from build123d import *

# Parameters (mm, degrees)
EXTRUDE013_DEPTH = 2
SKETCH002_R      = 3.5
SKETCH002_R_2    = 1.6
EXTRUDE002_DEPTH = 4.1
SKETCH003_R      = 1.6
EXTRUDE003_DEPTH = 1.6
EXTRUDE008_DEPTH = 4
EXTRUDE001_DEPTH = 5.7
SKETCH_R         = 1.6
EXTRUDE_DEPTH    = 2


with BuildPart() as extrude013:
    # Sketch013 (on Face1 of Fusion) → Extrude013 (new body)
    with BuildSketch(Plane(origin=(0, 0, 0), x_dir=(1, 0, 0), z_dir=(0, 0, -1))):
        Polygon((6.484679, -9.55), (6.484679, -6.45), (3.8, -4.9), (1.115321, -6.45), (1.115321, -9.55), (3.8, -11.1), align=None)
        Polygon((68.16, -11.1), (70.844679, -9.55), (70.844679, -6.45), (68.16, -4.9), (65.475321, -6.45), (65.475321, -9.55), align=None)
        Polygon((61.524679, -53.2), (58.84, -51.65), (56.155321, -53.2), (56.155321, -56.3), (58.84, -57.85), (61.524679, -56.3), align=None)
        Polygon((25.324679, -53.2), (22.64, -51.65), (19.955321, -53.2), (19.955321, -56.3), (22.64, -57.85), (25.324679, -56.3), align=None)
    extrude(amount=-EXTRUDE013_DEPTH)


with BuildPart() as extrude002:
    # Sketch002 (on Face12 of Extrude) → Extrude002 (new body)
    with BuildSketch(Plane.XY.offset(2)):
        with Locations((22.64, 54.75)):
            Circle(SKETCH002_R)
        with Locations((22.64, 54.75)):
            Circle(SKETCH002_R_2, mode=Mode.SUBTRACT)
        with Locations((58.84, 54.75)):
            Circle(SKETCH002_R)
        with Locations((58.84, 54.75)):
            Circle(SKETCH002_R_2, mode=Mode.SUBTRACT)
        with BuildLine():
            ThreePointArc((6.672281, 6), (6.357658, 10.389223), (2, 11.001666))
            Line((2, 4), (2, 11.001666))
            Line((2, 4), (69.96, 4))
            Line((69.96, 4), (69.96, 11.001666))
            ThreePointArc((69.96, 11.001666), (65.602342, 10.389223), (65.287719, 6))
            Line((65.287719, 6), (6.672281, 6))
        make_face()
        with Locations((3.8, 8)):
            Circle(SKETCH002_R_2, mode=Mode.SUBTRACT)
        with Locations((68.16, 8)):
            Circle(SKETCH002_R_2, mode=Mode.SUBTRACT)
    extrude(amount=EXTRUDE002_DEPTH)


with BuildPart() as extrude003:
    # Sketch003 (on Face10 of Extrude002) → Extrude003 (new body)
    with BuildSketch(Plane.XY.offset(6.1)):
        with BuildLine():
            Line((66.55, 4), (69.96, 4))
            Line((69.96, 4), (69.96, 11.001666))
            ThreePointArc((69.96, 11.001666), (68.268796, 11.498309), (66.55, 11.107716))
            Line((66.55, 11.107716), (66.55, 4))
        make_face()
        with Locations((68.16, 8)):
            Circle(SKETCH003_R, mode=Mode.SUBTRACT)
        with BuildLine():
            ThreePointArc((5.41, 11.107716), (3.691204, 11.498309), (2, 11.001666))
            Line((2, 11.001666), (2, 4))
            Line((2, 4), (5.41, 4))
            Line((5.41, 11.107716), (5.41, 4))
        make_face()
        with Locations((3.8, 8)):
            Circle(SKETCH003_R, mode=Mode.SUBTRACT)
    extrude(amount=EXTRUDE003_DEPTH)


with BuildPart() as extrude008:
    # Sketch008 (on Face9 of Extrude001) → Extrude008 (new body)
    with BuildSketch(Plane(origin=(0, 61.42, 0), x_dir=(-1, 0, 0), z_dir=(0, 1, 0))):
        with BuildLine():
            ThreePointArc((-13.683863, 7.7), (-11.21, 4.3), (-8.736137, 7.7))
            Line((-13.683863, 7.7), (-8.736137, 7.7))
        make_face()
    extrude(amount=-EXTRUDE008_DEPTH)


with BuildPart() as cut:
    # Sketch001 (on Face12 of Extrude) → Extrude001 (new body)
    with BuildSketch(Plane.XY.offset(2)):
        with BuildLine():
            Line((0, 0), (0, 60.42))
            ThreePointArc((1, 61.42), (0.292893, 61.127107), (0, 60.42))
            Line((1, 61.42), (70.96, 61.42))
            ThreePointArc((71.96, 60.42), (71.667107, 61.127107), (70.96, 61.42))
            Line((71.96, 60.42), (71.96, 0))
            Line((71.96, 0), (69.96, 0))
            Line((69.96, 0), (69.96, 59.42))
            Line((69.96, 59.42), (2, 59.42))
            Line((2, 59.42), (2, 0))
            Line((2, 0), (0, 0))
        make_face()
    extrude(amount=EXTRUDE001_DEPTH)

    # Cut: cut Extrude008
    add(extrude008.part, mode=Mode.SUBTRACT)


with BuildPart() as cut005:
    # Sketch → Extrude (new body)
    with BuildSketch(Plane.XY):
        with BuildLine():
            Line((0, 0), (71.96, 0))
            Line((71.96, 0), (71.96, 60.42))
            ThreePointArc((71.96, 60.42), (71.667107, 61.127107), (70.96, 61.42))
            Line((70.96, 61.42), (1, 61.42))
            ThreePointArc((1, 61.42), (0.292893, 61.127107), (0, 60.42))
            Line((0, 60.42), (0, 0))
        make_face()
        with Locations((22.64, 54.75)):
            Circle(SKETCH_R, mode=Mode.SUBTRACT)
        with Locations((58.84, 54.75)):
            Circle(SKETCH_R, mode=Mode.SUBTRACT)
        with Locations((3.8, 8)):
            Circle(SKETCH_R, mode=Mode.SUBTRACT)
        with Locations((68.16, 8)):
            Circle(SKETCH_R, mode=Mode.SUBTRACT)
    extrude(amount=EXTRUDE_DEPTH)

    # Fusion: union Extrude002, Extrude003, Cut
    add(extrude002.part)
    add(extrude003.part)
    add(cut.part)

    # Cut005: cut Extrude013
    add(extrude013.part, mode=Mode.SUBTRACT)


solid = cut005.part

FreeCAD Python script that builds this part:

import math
import FreeCAD as App
import Part
import Sketcher
Q = App.Units.Quantity


def add_polygon(sketch, points):
    """Adds a closed chain of lines whose ends are joined by coincident constraints."""
    first, n = sketch.GeometryCount, len(points)
    for a, b in zip(points, points[1:] + points[:1]):
        sketch.addGeometry(Part.LineSegment(App.Vector(*a, 0), App.Vector(*b, 0)), False)
    for i in range(n):
        sketch.addConstraint(Sketcher.Constraint("Coincident", first + i, 2, first + (i + 1) % n, 1))

doc = App.newDocument("Part")
params = doc.addObject("Spreadsheet::Sheet", "Params")
for row, (alias, value) in enumerate([
    ("sketch1_height", "3.1 mm"),
    ("sketch1_length", "3.1 mm"),
    ("pad1_length", "2 mm"),
    ("sketch2_diameter", "7 mm"),
    ("sketch2_diameter2", "3.2 mm"),
    ("sketch2_width", "67.96 mm"),
    ("pad2_length", "4.1 mm"),
    ("sketch3_diameter", "3.2 mm"),
    ("sketch3_width", "3.41 mm"),
    ("pad3_length", "1.6 mm"),
    ("sketch4_radius", "2.6 mm"),
    ("pad4_length", "4 mm"),
    ("sketch5_radius", "0.999999 mm"),
    ("sketch5_width", "2 mm"),
    ("sketch5_width2", "67.96 mm"),
    ("sketch5_height", "60.42 mm"),
    ("pad5_length", "5.7 mm"),
    ("sketch6_radius", "0.999999 mm"),
    ("sketch6_diameter", "3.2 mm"),
    ("sketch6_width", "71.96 mm"),
    ("sketch6_height", "60.42 mm"),
    ("pad6_length", "2 mm"),
], start=1):
    params.set(f"A{row}", alias)
    params.set(f"B{row}", "=" + value)
    params.setAlias(f"B{row}", alias)

body = doc.addObject("PartDesign::Body", "Body")
body.AllowCompound = True

sketch1 = body.newObject("Sketcher::SketchObject", "Sketch")
sketch1.AttachmentSupport = (doc.getObject("XY_Plane"), [""])
sketch1.MapMode = "FlatFace"
add_polygon(sketch1, [(6.5, 9.6), (6.5, 6.5), (3.8, 4.9), (1.1, 6.5), (1.1, 9.6), (3.8, 11.1)])
add_polygon(sketch1, [(68.2, 11.1), (70.8, 9.6), (70.8, 6.5), (68.2, 4.9), (65.5, 6.5), (65.5, 9.6)])
add_polygon(sketch1, [(61.5, 53.2), (58.8, 51.6), (56.2, 53.2), (56.2, 56.3), (58.8, 57.9), (61.5, 56.3)])
add_polygon(sketch1, [(25.3, 53.2), (22.6, 51.6), (20, 53.2), (20, 56.3), (22.6, 57.9), (25.3, 56.3)])
sketch1.addConstraint([
    Sketcher.Constraint("Vertical", 0),
    Sketcher.Constraint("Vertical", 3),
    Sketcher.Constraint("Vertical", 7),
    Sketcher.Constraint("Vertical", 10),
    Sketcher.Constraint("Vertical", 14),
    Sketcher.Constraint("Vertical", 17),
    Sketcher.Constraint("Vertical", 20),
    Sketcher.Constraint("Vertical", 23),
    Sketcher.Constraint("Parallel", 1, 4),
    Sketcher.Constraint("Parallel", 2, 5),
    Sketcher.Constraint("Parallel", 5, 6),
    Sketcher.Constraint("Parallel", 4, 8),
    Sketcher.Constraint("Parallel", 6, 9),
    Sketcher.Constraint("Parallel", 8, 11),
    Sketcher.Constraint("Parallel", 11, 12),
    Sketcher.Constraint("Parallel", 9, 13),
    Sketcher.Constraint("Parallel", 12, 15),
    Sketcher.Constraint("Parallel", 13, 16),
    Sketcher.Constraint("Parallel", 15, 18),
    Sketcher.Constraint("Parallel", 16, 19),
    Sketcher.Constraint("Parallel", 18, 21),
    Sketcher.Constraint("Parallel", 19, 22),
    Sketcher.Constraint("Horizontal", 0, 2, 2, 2),
    Sketcher.Constraint("Horizontal", 3, 2, 5, 2),
    Sketcher.Constraint("Horizontal", 5, 2, 6, 2),
    Sketcher.Constraint("Horizontal", 2, 2, 7, 2),
    Sketcher.Constraint("Horizontal", 1, 2, 8, 2),
    Sketcher.Constraint("Horizontal", 7, 2, 9, 2),
    Sketcher.Constraint("Horizontal", 6, 2, 10, 2),
    Sketcher.Constraint("Horizontal", 14, 2, 16, 2),
    Sketcher.Constraint("Horizontal", 13, 2, 17, 2),
    Sketcher.Constraint("Horizontal", 12, 2, 18, 2),
    Sketcher.Constraint("Horizontal", 17, 2, 19, 2),
    Sketcher.Constraint("Horizontal", 16, 2, 20, 2),
    Sketcher.Constraint("Horizontal", 15, 2, 21, 2),
    Sketcher.Constraint("Horizontal", 20, 2, 22, 2),
    Sketcher.Constraint("Vertical", 1, 2, 4, 2),
    Sketcher.Constraint("Equal", 10, 14),
    Sketcher.Constraint("Equal", 11, 12),
    Sketcher.Constraint("Angle", 1, Q("-150.000002 deg")),
    Sketcher.Constraint("DistanceY", 0, 2, 0, 1, Q("3.1 mm")),
    Sketcher.Constraint("Distance", 1, Q("3.1 mm")),
    Sketcher.Constraint("DistanceX", -1, 1, 1, 2, Q("3.8 mm")),
    Sketcher.Constraint("DistanceY", -1, 1, 1, 2, Q("4.9 mm")),
    Sketcher.Constraint("DistanceY", -1, 1, 13, 2, Q("53.2 mm")),
    Sketcher.Constraint("DistanceX", 18, 2, 12, 2, Q("36.2 mm")),
    Sketcher.Constraint("DistanceX", -1, 1, 8, 2, Q("68.16 mm")),
    Sketcher.Constraint("DistanceX", -1, 1, 12, 2, Q("58.84 mm")),
])
sketch1.setExpression("Constraints[64]", "Params.sketch1_height")
sketch1.setExpression("Constraints[65]", "Params.sketch1_length")
pad1 = body.newObject("PartDesign::Pad", "Pad")
pad1.Profile = sketch1
pad1.setExpression("Length", "Params.pad1_length")
body2 = doc.addObject("PartDesign::Body", "Body001")
body2.AllowCompound = True

sketch2 = body2.newObject("Sketcher::SketchObject", "Sketch001")
sketch2.AttachmentSupport = (doc.getObject("XY_Plane001"), [""])
sketch2.MapMode = "FlatFace"
sketch2.AttachmentOffset = App.Placement(App.Vector(0, 0, 2), App.Rotation())
sketch2.addGeometry([
    Part.Circle(App.Vector(22.6, 54.8, 0), App.Vector(0, 0, 1), 3.5),
    Part.Circle(App.Vector(22.6, 54.8, 0), App.Vector(0, 0, 1), 1.6),
    Part.Circle(App.Vector(58.8, 54.8, 0), App.Vector(0, 0, 1), 3.5),
    Part.Circle(App.Vector(58.8, 54.8, 0), App.Vector(0, 0, 1), 1.6),
    Part.ArcOfCircle(Part.Circle(App.Vector(3.8, 8, 0), App.Vector(0, 0, 1), 3.5), math.radians(-35), math.radians(121)),
    Part.LineSegment(App.Vector(2, 11, 0), App.Vector(2, 4, 0)),
    Part.LineSegment(App.Vector(2, 4, 0), App.Vector(70, 4, 0)),
    Part.LineSegment(App.Vector(70, 4, 0), App.Vector(70, 11, 0)),
    Part.ArcOfCircle(Part.Circle(App.Vector(68.2, 8, 0), App.Vector(0, 0, 1), 3.5), math.radians(59), math.radians(215)),
    Part.LineSegment(App.Vector(65.3, 6, 0), App.Vector(6.7, 6, 0)),
    Part.Circle(App.Vector(3.8, 8, 0), App.Vector(0, 0, 1), 1.6),
    Part.Circle(App.Vector(68.2, 8, 0), App.Vector(0, 0, 1), 1.6),
], False)
sketch2.addConstraint([
    Sketcher.Constraint("Coincident", 4, 2, 5, 1),
    Sketcher.Constraint("Coincident", 5, 2, 6, 1),
    Sketcher.Constraint("Coincident", 6, 2, 7, 1),
    Sketcher.Constraint("Coincident", 7, 2, 8, 1),
    Sketcher.Constraint("Coincident", 8, 2, 9, 1),
    Sketcher.Constraint("Coincident", 9, 2, 4, 1),
    Sketcher.Constraint("Vertical", 5),
    Sketcher.Constraint("Horizontal", 6),
    Sketcher.Constraint("Vertical", 7),
    Sketcher.Constraint("Horizontal", 9),
    Sketcher.Constraint("Coincident", 1, 3, 0, 3),
    Sketcher.Constraint("Coincident", 3, 3, 2, 3),
    Sketcher.Constraint("Coincident", 10, 3, 4, 3),
    Sketcher.Constraint("Coincident", 11, 3, 8, 3),
    Sketcher.Constraint("Equal", 0, 2),
    Sketcher.Constraint("Equal", 1, 3),
    Sketcher.Constraint("Equal", 2, 4),
    Sketcher.Constraint("Equal", 4, 8),
    Sketcher.Constraint("Equal", 3, 10),
    Sketcher.Constraint("Equal", 10, 11),
    Sketcher.Constraint("Horizontal", 1, 3, 2, 3),
    Sketcher.Constraint("Horizontal", 4, 3, 8, 3),
    Sketcher.Constraint("Horizontal", 4, 2, 7, 2),
    Sketcher.Constraint("Diameter", 0, Q("7 mm")),
    Sketcher.Constraint("Diameter", 1, Q("3.2 mm")),
    Sketcher.Constraint("DistanceY", -1, 1, 4, 3, Q("8 mm")),
    Sketcher.Constraint("DistanceX", -1, 1, 4, 2, Q("2 mm")),
    Sketcher.Constraint("DistanceY", -1, 1, 5, 2, Q("4 mm")),
    Sketcher.Constraint("DistanceY", -1, 1, 8, 2, Q("6 mm")),
    Sketcher.Constraint("DistanceX", 6, 1, 6, 2, Q("67.96 mm")),
    Sketcher.Constraint("DistanceX", -1, 1, 4, 3, Q("3.8 mm")),
    Sketcher.Constraint("DistanceX", 0, 3, 2, 3, Q("36.2 mm")),
    Sketcher.Constraint("DistanceX", -1, 1, 0, 3, Q("22.64 mm")),
    Sketcher.Constraint("DistanceY", -1, 1, 0, 3, Q("54.75 mm")),
])
sketch2.setExpression("Constraints[23]", "Params.sketch2_diameter")
sketch2.setExpression("Constraints[24]", "Params.sketch2_diameter2")
sketch2.setExpression("Constraints[29]", "Params.sketch2_width")
pad2 = body2.newObject("PartDesign::Pad", "Pad001")
pad2.Profile = sketch2
pad2.setExpression("Length", "Params.pad2_length")
body3 = doc.addObject("PartDesign::Body", "Body002")
body3.AllowCompound = True

sketch3 = body3.newObject("Sketcher::SketchObject", "Sketch002")
sketch3.AttachmentSupport = (doc.getObject("XY_Plane002"), [""])
sketch3.MapMode = "FlatFace"
sketch3.AttachmentOffset = App.Placement(App.Vector(0, 0, 6.1), App.Rotation())
sketch3.addGeometry([
    Part.LineSegment(App.Vector(66.5, 4, 0), App.Vector(70, 4, 0)),
    Part.LineSegment(App.Vector(70, 4, 0), App.Vector(70, 11, 0)),
    Part.ArcOfCircle(Part.Circle(App.Vector(68.2, 8, 0), App.Vector(0, 0, 1), 3.5), math.radians(59), math.radians(117)),
    Part.LineSegment(App.Vector(66.5, 11.1, 0), App.Vector(66.5, 4, 0)),
    Part.Circle(App.Vector(68.2, 8, 0), App.Vector(0, 0, 1), 1.6),
    Part.ArcOfCircle(Part.Circle(App.Vector(3.8, 8, 0), App.Vector(0, 0, 1), 3.5), math.radians(63), math.radians(121)),
    Part.LineSegment(App.Vector(2, 11, 0), App.Vector(2, 4, 0)),
    Part.LineSegment(App.Vector(2, 4, 0), App.Vector(5.4, 4, 0)),
    Part.LineSegment(App.Vector(5.4, 4, 0), App.Vector(5.4, 11.1, 0)),
    Part.Circle(App.Vector(3.8, 8, 0), App.Vector(0, 0, 1), 1.6),
], False)
sketch3.addConstraint([
    Sketcher.Constraint("Coincident", 0, 2, 1, 1),
    Sketcher.Constraint("Coincident", 1, 2, 2, 1),
    Sketcher.Constraint("Coincident", 2, 2, 3, 1),
    Sketcher.Constraint("Coincident", 3, 2, 0, 1),
    Sketcher.Constraint("Coincident", 5, 2, 6, 1),
    Sketcher.Constraint("Coincident", 6, 2, 7, 1),
    Sketcher.Constraint("Coincident", 7, 2, 8, 1),
    Sketcher.Constraint("Coincident", 8, 2, 5, 1),
    Sketcher.Constraint("Horizontal", 0),
    Sketcher.Constraint("Vertical", 1),
    Sketcher.Constraint("Vertical", 3),
    Sketcher.Constraint("Vertical", 6),
    Sketcher.Constraint("Horizontal", 7),
    Sketcher.Constraint("Vertical", 8),
    Sketcher.Constraint("Coincident", 4, 3, 2, 3),
    Sketcher.Constraint("Coincident", 9, 3, 5, 3),
    Sketcher.Constraint("Equal", 2, 5),
    Sketcher.Constraint("Equal", 4, 9),
    Sketcher.Constraint("Horizontal", 2, 3, 5, 3),
    Sketcher.Constraint("Horizontal", 1, 2, 5, 2),
    Sketcher.Constraint("Horizontal", 3, 2, 6, 2),
    Sketcher.Constraint("Horizontal", 2, 2, 8, 2),
    Sketcher.Constraint("Diameter", 4, Q("3.2 mm")),
    Sketcher.Constraint("DistanceY", -1, 1, 4, 3, Q("8 mm")),
    Sketcher.Constraint("DistanceY", -1, 1, 0, 2, Q("4 mm")),
    Sketcher.Constraint("DistanceX", -1, 1, 5, 2, Q("2 mm")),
    Sketcher.Constraint("DistanceX", 0, 1, 0, 2, Q("3.41 mm")),
    Sketcher.Constraint("DistanceX", -1, 1, 5, 3, Q("3.8 mm")),
    Sketcher.Constraint("DistanceX", -1, 1, 2, 3, Q("68.16 mm")),
    Sketcher.Constraint("Radius", 2, Q("3.499996 mm")),
])
sketch3.setExpression("Constraints[22]", "Params.sketch3_diameter")
sketch3.setExpression("Constraints[26]", "Params.sketch3_width")
pad3 = body3.newObject("PartDesign::Pad", "Pad002")
pad3.Profile = sketch3
pad3.setExpression("Length", "Params.pad3_length")
body4 = doc.addObject("PartDesign::Body", "Body003")

sketch4 = body4.newObject("Sketcher::SketchObject", "Sketch003")
sketch4.AttachmentSupport = (doc.getObject("XZ_Plane003"), [""])
sketch4.MapMode = "FlatFace"
sketch4.AttachmentOffset = App.Placement(App.Vector(0, 0, -61.42), App.Rotation())
sketch4.addGeometry([
    Part.ArcOfCircle(Part.Circle(App.Vector(11.2, 6.9, 0), App.Vector(0, 0, 1), 2.6), math.radians(162), math.radians(378)),
    Part.LineSegment(App.Vector(8.7, 7.7, 0), App.Vector(13.7, 7.7, 0)),
], False)
sketch4.addConstraint([
    Sketcher.Constraint("Coincident", 0, 1, 1, 1),
    Sketcher.Constraint("Coincident", 1, 2, 0, 2),
    Sketcher.Constraint("Horizontal", 1),
    Sketcher.Constraint("Radius", 0, Q("2.6 mm")),
    Sketcher.Constraint("DistanceY", -1, 1, 0, 3, Q("6.9 mm")),
    Sketcher.Constraint("DistanceY", -1, 1, 0, 1, Q("7.7 mm")),
    Sketcher.Constraint("DistanceX", -1, 1, 0, 3, Q("11.21 mm")),
])
sketch4.setExpression("Constraints[3]", "Params.sketch4_radius")
pad4 = body4.newObject("PartDesign::Pad", "Pad003")
pad4.Profile = sketch4
pad4.setExpression("Length", "Params.pad4_length")
body5 = doc.addObject("PartDesign::Body", "Body004")

sketch5 = body5.newObject("Sketcher::SketchObject", "Sketch004")
sketch5.AttachmentSupport = (doc.getObject("XY_Plane004"), [""])
sketch5.MapMode = "FlatFace"
sketch5.AttachmentOffset = App.Placement(App.Vector(0, 0, 2), App.Rotation())
sketch5.addGeometry([
    Part.LineSegment(App.Vector(0, 60.4, 0), App.Vector(0, 0, 0)),
    Part.LineSegment(App.Vector(0, 0, 0), App.Vector(2, 0, 0)),
    Part.LineSegment(App.Vector(2, 0, 0), App.Vector(2, 59.4, 0)),
    Part.LineSegment(App.Vector(2, 59.4, 0), App.Vector(70, 59.4, 0)),
    Part.LineSegment(App.Vector(70, 59.4, 0), App.Vector(70, 0, 0)),
    Part.LineSegment(App.Vector(70, 0, 0), App.Vector(72, 0, 0)),
    Part.LineSegment(App.Vector(72, 0, 0), App.Vector(72, 60.4, 0)),
    Part.ArcOfCircle(Part.Circle(App.Vector(71, 60.4, 0), App.Vector(0, 0, 1), 1), math.radians(0), math.radians(90)),
    Part.LineSegment(App.Vector(71, 61.4, 0), App.Vector(1, 61.4, 0)),
    Part.ArcOfCircle(Part.Circle(App.Vector(1, 60.4, 0), App.Vector(0, 0, 1), 1), math.radians(90), math.radians(180)),
], False)
sketch5.addConstraint([
    Sketcher.Constraint("Coincident", 0, 2, 1, 1),
    Sketcher.Constraint("Coincident", 1, 2, 2, 1),
    Sketcher.Constraint("Coincident", 2, 2, 3, 1),
    Sketcher.Constraint("Coincident", 3, 2, 4, 1),
    Sketcher.Constraint("Coincident", 4, 2, 5, 1),
    Sketcher.Constraint("Coincident", 5, 2, 6, 1),
    Sketcher.Constraint("Tangent", 6, 2, 7, 1),
    Sketcher.Constraint("Tangent", 7, 2, 8, 1),
    Sketcher.Constraint("Tangent", 8, 2, 9, 1),
    Sketcher.Constraint("Tangent", 9, 2, 0, 1),
    Sketcher.Constraint("Vertical", 0),
    Sketcher.Constraint("Horizontal", 1),
    Sketcher.Constraint("Vertical", 2),
    Sketcher.Constraint("Horizontal", 3),
    Sketcher.Constraint("Vertical", 4),
    Sketcher.Constraint("Horizontal", 5),
    Sketcher.Constraint("Vertical", 6),
    Sketcher.Constraint("Horizontal", 8),
    Sketcher.Constraint("Coincident", 0, 2, -1, 1),
    Sketcher.Constraint("Equal", 7, 9),
    Sketcher.Constraint("PointOnObject", 4, 2, -1),
    Sketcher.Constraint("Equal", 1, 5),
    Sketcher.Constraint("Radius", 7, Q("0.999999 mm")),
    Sketcher.Constraint("DistanceX", 1, 1, 1, 2, Q("2 mm")),
    Sketcher.Constraint("DistanceY", 2, 2, 9, 3, Q("1.000001 mm")),
    Sketcher.Constraint("DistanceX", 3, 1, 3, 2, Q("67.96 mm")),
    Sketcher.Constraint("DistanceY", 0, 2, 0, 1, Q("60.42 mm")),
])
sketch5.setExpression("Constraints[22]", "Params.sketch5_radius")
sketch5.setExpression("Constraints[23]", "Params.sketch5_width")
sketch5.setExpression("Constraints[25]", "Params.sketch5_width2")
sketch5.setExpression("Constraints[26]", "Params.sketch5_height")
pad5 = body5.newObject("PartDesign::Pad", "Pad004")
pad5.Profile = sketch5
pad5.setExpression("Length", "Params.pad5_length")
doc.recompute()

boolean = body5.newObject("PartDesign::Boolean", "Boolean")
boolean.Type = "Cut"
boolean.addObjects([body4])
body6 = doc.addObject("PartDesign::Body", "Body005")

sketch6 = body6.newObject("Sketcher::SketchObject", "Sketch005")
sketch6.AttachmentSupport = (doc.getObject("XY_Plane005"), [""])
sketch6.MapMode = "FlatFace"
sketch6.addGeometry([
    Part.LineSegment(App.Vector(0, 0, 0), App.Vector(72, 0, 0)),
    Part.LineSegment(App.Vector(72, 0, 0), App.Vector(72, 60.4, 0)),
    Part.ArcOfCircle(Part.Circle(App.Vector(71, 60.4, 0), App.Vector(0, 0, 1), 1), math.radians(0), math.radians(90)),
    Part.LineSegment(App.Vector(71, 61.4, 0), App.Vector(1, 61.4, 0)),
    Part.ArcOfCircle(Part.Circle(App.Vector(1, 60.4, 0), App.Vector(0, 0, 1), 1), math.radians(90), math.radians(180)),
    Part.LineSegment(App.Vector(0, 60.4, 0), App.Vector(0, 0, 0)),
    Part.Circle(App.Vector(3.8, 8, 0), App.Vector(0, 0, 1), 1.6),
    Part.Circle(App.Vector(68.2, 8, 0), App.Vector(0, 0, 1), 1.6),
    Part.Circle(App.Vector(22.6, 54.8, 0), App.Vector(0, 0, 1), 1.6),
    Part.Circle(App.Vector(58.8, 54.8, 0), App.Vector(0, 0, 1), 1.6),
], False)
sketch6.addConstraint([
    Sketcher.Constraint("Coincident", 0, 2, 1, 1),
    Sketcher.Constraint("Tangent", 1, 2, 2, 1),
    Sketcher.Constraint("Tangent", 2, 2, 3, 1),
    Sketcher.Constraint("Tangent", 3, 2, 4, 1),
    Sketcher.Constraint("Tangent", 4, 2, 5, 1),
    Sketcher.Constraint("Coincident", 5, 2, 0, 1),
    Sketcher.Constraint("Horizontal", 0),
    Sketcher.Constraint("Vertical", 1),
    Sketcher.Constraint("Horizontal", 3),
    Sketcher.Constraint("Vertical", 5),
    Sketcher.Constraint("Coincident", 5, 2, -1, 1),
    Sketcher.Constraint("Equal", 2, 4),
    Sketcher.Constraint("Equal", 6, 7),
    Sketcher.Constraint("Equal", 7, 8),
    Sketcher.Constraint("Equal", 8, 9),
    Sketcher.Constraint("Horizontal", 6, 3, 7, 3),
    Sketcher.Constraint("Horizontal", 8, 3, 9, 3),
    Sketcher.Constraint("Radius", 2, Q("0.999999 mm")),
    Sketcher.Constraint("Diameter", 6, Q("3.2 mm")),
    Sketcher.Constraint("DistanceY", -1, 1, 6, 3, Q("8 mm")),
    Sketcher.Constraint("DistanceX", 0, 1, 0, 2, Q("71.96 mm")),
    Sketcher.Constraint("DistanceY", 1, 1, 1, 2, Q("60.42 mm")),
    Sketcher.Constraint("DistanceX", -1, 1, 6, 3, Q("3.8 mm")),
    Sketcher.Constraint("DistanceX", 7, 3, 2, 3, Q("2.800001 mm")),
    Sketcher.Constraint("DistanceX", 8, 3, 9, 3, Q("36.2 mm")),
    Sketcher.Constraint("DistanceX", -1, 1, 8, 3, Q("22.64 mm")),
    Sketcher.Constraint("DistanceY", -1, 1, 8, 3, Q("54.75 mm")),
])
sketch6.setExpression("Constraints[17]", "Params.sketch6_radius")
sketch6.setExpression("Constraints[18]", "Params.sketch6_diameter")
sketch6.setExpression("Constraints[20]", "Params.sketch6_width")
sketch6.setExpression("Constraints[21]", "Params.sketch6_height")
pad6 = body6.newObject("PartDesign::Pad", "Pad005")
pad6.Profile = sketch6
pad6.setExpression("Length", "Params.pad6_length")
doc.recompute()

boolean2 = body6.newObject("PartDesign::Boolean", "Boolean001")
boolean2.Type = "Fuse"
boolean2.addObjects([body2])
doc.recompute()

boolean3 = body6.newObject("PartDesign::Boolean", "Boolean002")
boolean3.Type = "Fuse"
boolean3.addObjects([body3])
doc.recompute()

boolean4 = body6.newObject("PartDesign::Boolean", "Boolean003")
boolean4.Type = "Fuse"
boolean4.addObjects([body5])
doc.recompute()

boolean5 = body6.newObject("PartDesign::Boolean", "Boolean004")
boolean5.Type = "Cut"
boolean5.addObjects([body])

doc.recompute()
